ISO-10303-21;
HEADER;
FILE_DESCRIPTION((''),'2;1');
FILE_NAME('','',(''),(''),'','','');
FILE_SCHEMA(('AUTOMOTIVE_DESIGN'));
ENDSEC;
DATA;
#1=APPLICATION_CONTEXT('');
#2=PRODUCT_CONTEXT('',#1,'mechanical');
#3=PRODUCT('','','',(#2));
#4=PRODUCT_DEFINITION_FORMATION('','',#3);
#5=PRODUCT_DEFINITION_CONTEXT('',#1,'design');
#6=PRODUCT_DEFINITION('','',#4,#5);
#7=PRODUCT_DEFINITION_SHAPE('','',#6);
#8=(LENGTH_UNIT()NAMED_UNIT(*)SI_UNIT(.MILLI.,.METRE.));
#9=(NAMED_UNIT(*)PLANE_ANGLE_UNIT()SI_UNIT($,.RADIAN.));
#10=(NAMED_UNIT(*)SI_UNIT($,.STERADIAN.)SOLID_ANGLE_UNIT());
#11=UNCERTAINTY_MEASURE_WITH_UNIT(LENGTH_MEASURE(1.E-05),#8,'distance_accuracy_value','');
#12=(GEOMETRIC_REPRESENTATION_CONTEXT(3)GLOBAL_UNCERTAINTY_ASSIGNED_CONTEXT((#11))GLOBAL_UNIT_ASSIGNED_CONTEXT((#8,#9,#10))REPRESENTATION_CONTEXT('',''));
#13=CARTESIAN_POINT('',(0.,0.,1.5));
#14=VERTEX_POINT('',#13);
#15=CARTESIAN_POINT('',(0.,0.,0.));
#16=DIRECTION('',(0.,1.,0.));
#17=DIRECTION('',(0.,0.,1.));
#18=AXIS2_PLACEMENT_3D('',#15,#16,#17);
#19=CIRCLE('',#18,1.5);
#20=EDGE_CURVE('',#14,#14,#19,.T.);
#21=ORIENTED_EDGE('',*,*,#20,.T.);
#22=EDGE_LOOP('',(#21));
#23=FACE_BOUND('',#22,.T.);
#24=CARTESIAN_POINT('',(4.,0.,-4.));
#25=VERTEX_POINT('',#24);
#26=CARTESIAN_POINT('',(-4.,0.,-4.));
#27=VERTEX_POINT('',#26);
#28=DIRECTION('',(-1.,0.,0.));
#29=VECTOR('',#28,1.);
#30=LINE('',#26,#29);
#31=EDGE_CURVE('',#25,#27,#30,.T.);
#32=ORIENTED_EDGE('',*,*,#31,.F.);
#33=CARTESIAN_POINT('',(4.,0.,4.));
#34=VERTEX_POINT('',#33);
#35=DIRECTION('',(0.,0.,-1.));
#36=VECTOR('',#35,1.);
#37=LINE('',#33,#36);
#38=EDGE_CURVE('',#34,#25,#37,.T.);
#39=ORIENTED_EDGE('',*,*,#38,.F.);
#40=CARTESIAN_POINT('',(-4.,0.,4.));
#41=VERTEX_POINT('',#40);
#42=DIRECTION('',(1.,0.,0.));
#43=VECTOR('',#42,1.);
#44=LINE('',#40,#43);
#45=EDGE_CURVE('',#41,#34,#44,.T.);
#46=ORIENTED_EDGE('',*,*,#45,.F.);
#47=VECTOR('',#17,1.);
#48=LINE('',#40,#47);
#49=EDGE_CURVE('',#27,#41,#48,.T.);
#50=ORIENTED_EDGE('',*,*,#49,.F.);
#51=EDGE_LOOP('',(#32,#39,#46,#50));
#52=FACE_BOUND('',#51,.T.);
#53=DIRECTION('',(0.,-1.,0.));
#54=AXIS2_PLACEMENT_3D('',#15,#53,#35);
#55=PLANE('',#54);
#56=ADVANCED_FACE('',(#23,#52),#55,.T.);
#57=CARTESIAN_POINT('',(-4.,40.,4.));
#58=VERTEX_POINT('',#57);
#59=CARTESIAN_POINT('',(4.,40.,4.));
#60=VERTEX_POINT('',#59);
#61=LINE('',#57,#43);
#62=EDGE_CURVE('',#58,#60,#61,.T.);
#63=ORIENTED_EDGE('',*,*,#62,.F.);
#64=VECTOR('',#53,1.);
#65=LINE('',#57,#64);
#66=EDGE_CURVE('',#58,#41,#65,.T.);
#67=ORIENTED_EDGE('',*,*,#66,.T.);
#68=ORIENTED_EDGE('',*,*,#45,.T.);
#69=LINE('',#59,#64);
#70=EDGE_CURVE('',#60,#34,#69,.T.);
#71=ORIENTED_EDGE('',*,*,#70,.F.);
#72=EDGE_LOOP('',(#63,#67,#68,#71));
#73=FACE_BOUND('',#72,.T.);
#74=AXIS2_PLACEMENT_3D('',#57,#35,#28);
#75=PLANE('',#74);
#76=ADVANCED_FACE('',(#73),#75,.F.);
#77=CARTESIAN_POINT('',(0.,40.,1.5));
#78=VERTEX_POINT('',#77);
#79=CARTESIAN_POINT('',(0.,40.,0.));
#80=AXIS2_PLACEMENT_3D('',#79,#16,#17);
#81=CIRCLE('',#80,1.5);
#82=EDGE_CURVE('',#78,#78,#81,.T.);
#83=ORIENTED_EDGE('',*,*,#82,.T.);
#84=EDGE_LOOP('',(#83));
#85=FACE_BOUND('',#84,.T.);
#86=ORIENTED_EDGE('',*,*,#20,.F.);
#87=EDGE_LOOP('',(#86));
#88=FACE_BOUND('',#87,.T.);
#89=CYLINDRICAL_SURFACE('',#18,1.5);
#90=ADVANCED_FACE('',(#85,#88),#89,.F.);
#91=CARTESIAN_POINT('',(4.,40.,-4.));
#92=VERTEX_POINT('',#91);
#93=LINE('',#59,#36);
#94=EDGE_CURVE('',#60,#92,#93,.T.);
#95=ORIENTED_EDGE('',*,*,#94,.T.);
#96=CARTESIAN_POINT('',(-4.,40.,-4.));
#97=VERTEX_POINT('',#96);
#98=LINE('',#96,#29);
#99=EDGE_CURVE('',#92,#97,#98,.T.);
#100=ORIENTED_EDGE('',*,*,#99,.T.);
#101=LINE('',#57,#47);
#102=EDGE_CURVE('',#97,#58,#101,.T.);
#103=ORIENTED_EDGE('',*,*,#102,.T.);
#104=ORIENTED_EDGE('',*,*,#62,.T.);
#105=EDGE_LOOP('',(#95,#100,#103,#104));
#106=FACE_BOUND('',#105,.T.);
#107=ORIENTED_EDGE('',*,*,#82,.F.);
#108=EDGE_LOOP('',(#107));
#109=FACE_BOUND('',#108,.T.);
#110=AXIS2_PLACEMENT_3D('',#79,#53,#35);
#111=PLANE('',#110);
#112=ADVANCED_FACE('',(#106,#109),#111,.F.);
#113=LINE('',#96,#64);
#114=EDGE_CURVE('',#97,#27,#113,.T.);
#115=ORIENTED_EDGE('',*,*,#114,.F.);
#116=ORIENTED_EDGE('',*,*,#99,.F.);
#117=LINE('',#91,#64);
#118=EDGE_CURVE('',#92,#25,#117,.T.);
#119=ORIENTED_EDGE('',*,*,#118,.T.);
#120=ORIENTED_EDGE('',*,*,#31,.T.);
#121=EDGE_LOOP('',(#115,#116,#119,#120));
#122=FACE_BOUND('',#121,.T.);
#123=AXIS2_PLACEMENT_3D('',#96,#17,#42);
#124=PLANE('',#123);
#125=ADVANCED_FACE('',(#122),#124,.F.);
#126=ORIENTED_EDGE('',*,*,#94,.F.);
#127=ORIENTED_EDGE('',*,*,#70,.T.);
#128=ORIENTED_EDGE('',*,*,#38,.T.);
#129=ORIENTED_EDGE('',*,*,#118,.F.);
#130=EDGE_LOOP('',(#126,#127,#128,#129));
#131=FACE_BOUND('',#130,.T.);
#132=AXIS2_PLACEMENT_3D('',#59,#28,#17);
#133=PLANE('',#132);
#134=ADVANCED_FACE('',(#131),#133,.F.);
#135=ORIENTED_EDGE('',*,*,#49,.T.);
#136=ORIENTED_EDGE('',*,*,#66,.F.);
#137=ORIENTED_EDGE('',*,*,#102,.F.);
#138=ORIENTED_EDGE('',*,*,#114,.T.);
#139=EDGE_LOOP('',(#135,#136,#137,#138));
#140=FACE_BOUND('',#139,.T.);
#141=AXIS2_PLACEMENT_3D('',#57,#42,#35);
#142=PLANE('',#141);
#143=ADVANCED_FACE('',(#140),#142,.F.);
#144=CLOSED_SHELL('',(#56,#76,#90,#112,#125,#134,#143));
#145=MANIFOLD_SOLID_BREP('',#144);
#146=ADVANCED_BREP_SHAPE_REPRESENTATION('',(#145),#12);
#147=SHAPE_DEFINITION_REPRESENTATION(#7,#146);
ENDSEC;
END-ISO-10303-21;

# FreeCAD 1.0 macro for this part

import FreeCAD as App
import Part
import Sketcher
from FreeCAD import Vector


def add_polygon(sketch, points):
    """Adds a closed chain of lines whose ends are joined by coincident constraints."""
    first, n = sketch.GeometryCount, len(points)
    for a, b in zip(points, points[1:] + points[:1]):
        sketch.addGeometry(Part.LineSegment(App.Vector(*a, 0), App.Vector(*b, 0)), False)
    for i in range(n):
        sketch.addConstraint(Sketcher.Constraint("Coincident", first + i, 2, first + (i + 1) % n, 1))

doc = App.newDocument("Part")
body = doc.addObject("PartDesign::Body", "Body")

# Sketch on XZ plane
sketch1 = body.newObject("Sketcher::SketchObject", "Sketch")
sketch1.AttachmentSupport = (doc.getObject("XZ_Plane"), [""])
sketch1.MapMode = "FlatFace"
add_polygon(sketch1, [(-4, -4), (-4, 4), (4, 4), (4, -4)])  # lines 0-3
sketch1.addConstraint([
    Sketcher.Constraint("Vertical", 0),
    Sketcher.Constraint("Horizontal", 1),
    Sketcher.Constraint("Vertical", 2),
    Sketcher.Constraint("Horizontal", 3),
    Sketcher.Constraint("Symmetric", 0, 2, 2, 2, -1, 1),
    Sketcher.Constraint("Equal", 3, 0),
    Sketcher.Constraint("DistanceX", 1, 1, 1, 2, 8.0),
])
pad1 = body.newObject("PartDesign::Pad", "Pad")
pad1.Profile = sketch1
pad1.Length = 40
pad1.Reversed = True

# Sketch on XZ plane
sketch2 = body.newObject("Sketcher::SketchObject", "Sketch001")
sketch2.AttachmentSupport = (doc.getObject("XZ_Plane"), [""])
sketch2.MapMode = "FlatFace"
sketch2.AttachmentOffset = App.Placement(Vector(0, 0, -40), App.Rotation())
sketch2.addGeometry(Part.Circle(Vector(0, 0, 0), Vector(0, 0, 1), 1.5), False)
sketch2.addConstraint([
    Sketcher.Constraint("Coincident", 0, 3, -1, 1),
    Sketcher.Constraint("Diameter", 0, 3.0),
])
pocket1 = body.newObject("PartDesign::Pocket", "Pocket")
pocket1.Profile = sketch2
pocket1.Type = "ThroughAll"
pocket1.Reversed = True

doc.recompute()
